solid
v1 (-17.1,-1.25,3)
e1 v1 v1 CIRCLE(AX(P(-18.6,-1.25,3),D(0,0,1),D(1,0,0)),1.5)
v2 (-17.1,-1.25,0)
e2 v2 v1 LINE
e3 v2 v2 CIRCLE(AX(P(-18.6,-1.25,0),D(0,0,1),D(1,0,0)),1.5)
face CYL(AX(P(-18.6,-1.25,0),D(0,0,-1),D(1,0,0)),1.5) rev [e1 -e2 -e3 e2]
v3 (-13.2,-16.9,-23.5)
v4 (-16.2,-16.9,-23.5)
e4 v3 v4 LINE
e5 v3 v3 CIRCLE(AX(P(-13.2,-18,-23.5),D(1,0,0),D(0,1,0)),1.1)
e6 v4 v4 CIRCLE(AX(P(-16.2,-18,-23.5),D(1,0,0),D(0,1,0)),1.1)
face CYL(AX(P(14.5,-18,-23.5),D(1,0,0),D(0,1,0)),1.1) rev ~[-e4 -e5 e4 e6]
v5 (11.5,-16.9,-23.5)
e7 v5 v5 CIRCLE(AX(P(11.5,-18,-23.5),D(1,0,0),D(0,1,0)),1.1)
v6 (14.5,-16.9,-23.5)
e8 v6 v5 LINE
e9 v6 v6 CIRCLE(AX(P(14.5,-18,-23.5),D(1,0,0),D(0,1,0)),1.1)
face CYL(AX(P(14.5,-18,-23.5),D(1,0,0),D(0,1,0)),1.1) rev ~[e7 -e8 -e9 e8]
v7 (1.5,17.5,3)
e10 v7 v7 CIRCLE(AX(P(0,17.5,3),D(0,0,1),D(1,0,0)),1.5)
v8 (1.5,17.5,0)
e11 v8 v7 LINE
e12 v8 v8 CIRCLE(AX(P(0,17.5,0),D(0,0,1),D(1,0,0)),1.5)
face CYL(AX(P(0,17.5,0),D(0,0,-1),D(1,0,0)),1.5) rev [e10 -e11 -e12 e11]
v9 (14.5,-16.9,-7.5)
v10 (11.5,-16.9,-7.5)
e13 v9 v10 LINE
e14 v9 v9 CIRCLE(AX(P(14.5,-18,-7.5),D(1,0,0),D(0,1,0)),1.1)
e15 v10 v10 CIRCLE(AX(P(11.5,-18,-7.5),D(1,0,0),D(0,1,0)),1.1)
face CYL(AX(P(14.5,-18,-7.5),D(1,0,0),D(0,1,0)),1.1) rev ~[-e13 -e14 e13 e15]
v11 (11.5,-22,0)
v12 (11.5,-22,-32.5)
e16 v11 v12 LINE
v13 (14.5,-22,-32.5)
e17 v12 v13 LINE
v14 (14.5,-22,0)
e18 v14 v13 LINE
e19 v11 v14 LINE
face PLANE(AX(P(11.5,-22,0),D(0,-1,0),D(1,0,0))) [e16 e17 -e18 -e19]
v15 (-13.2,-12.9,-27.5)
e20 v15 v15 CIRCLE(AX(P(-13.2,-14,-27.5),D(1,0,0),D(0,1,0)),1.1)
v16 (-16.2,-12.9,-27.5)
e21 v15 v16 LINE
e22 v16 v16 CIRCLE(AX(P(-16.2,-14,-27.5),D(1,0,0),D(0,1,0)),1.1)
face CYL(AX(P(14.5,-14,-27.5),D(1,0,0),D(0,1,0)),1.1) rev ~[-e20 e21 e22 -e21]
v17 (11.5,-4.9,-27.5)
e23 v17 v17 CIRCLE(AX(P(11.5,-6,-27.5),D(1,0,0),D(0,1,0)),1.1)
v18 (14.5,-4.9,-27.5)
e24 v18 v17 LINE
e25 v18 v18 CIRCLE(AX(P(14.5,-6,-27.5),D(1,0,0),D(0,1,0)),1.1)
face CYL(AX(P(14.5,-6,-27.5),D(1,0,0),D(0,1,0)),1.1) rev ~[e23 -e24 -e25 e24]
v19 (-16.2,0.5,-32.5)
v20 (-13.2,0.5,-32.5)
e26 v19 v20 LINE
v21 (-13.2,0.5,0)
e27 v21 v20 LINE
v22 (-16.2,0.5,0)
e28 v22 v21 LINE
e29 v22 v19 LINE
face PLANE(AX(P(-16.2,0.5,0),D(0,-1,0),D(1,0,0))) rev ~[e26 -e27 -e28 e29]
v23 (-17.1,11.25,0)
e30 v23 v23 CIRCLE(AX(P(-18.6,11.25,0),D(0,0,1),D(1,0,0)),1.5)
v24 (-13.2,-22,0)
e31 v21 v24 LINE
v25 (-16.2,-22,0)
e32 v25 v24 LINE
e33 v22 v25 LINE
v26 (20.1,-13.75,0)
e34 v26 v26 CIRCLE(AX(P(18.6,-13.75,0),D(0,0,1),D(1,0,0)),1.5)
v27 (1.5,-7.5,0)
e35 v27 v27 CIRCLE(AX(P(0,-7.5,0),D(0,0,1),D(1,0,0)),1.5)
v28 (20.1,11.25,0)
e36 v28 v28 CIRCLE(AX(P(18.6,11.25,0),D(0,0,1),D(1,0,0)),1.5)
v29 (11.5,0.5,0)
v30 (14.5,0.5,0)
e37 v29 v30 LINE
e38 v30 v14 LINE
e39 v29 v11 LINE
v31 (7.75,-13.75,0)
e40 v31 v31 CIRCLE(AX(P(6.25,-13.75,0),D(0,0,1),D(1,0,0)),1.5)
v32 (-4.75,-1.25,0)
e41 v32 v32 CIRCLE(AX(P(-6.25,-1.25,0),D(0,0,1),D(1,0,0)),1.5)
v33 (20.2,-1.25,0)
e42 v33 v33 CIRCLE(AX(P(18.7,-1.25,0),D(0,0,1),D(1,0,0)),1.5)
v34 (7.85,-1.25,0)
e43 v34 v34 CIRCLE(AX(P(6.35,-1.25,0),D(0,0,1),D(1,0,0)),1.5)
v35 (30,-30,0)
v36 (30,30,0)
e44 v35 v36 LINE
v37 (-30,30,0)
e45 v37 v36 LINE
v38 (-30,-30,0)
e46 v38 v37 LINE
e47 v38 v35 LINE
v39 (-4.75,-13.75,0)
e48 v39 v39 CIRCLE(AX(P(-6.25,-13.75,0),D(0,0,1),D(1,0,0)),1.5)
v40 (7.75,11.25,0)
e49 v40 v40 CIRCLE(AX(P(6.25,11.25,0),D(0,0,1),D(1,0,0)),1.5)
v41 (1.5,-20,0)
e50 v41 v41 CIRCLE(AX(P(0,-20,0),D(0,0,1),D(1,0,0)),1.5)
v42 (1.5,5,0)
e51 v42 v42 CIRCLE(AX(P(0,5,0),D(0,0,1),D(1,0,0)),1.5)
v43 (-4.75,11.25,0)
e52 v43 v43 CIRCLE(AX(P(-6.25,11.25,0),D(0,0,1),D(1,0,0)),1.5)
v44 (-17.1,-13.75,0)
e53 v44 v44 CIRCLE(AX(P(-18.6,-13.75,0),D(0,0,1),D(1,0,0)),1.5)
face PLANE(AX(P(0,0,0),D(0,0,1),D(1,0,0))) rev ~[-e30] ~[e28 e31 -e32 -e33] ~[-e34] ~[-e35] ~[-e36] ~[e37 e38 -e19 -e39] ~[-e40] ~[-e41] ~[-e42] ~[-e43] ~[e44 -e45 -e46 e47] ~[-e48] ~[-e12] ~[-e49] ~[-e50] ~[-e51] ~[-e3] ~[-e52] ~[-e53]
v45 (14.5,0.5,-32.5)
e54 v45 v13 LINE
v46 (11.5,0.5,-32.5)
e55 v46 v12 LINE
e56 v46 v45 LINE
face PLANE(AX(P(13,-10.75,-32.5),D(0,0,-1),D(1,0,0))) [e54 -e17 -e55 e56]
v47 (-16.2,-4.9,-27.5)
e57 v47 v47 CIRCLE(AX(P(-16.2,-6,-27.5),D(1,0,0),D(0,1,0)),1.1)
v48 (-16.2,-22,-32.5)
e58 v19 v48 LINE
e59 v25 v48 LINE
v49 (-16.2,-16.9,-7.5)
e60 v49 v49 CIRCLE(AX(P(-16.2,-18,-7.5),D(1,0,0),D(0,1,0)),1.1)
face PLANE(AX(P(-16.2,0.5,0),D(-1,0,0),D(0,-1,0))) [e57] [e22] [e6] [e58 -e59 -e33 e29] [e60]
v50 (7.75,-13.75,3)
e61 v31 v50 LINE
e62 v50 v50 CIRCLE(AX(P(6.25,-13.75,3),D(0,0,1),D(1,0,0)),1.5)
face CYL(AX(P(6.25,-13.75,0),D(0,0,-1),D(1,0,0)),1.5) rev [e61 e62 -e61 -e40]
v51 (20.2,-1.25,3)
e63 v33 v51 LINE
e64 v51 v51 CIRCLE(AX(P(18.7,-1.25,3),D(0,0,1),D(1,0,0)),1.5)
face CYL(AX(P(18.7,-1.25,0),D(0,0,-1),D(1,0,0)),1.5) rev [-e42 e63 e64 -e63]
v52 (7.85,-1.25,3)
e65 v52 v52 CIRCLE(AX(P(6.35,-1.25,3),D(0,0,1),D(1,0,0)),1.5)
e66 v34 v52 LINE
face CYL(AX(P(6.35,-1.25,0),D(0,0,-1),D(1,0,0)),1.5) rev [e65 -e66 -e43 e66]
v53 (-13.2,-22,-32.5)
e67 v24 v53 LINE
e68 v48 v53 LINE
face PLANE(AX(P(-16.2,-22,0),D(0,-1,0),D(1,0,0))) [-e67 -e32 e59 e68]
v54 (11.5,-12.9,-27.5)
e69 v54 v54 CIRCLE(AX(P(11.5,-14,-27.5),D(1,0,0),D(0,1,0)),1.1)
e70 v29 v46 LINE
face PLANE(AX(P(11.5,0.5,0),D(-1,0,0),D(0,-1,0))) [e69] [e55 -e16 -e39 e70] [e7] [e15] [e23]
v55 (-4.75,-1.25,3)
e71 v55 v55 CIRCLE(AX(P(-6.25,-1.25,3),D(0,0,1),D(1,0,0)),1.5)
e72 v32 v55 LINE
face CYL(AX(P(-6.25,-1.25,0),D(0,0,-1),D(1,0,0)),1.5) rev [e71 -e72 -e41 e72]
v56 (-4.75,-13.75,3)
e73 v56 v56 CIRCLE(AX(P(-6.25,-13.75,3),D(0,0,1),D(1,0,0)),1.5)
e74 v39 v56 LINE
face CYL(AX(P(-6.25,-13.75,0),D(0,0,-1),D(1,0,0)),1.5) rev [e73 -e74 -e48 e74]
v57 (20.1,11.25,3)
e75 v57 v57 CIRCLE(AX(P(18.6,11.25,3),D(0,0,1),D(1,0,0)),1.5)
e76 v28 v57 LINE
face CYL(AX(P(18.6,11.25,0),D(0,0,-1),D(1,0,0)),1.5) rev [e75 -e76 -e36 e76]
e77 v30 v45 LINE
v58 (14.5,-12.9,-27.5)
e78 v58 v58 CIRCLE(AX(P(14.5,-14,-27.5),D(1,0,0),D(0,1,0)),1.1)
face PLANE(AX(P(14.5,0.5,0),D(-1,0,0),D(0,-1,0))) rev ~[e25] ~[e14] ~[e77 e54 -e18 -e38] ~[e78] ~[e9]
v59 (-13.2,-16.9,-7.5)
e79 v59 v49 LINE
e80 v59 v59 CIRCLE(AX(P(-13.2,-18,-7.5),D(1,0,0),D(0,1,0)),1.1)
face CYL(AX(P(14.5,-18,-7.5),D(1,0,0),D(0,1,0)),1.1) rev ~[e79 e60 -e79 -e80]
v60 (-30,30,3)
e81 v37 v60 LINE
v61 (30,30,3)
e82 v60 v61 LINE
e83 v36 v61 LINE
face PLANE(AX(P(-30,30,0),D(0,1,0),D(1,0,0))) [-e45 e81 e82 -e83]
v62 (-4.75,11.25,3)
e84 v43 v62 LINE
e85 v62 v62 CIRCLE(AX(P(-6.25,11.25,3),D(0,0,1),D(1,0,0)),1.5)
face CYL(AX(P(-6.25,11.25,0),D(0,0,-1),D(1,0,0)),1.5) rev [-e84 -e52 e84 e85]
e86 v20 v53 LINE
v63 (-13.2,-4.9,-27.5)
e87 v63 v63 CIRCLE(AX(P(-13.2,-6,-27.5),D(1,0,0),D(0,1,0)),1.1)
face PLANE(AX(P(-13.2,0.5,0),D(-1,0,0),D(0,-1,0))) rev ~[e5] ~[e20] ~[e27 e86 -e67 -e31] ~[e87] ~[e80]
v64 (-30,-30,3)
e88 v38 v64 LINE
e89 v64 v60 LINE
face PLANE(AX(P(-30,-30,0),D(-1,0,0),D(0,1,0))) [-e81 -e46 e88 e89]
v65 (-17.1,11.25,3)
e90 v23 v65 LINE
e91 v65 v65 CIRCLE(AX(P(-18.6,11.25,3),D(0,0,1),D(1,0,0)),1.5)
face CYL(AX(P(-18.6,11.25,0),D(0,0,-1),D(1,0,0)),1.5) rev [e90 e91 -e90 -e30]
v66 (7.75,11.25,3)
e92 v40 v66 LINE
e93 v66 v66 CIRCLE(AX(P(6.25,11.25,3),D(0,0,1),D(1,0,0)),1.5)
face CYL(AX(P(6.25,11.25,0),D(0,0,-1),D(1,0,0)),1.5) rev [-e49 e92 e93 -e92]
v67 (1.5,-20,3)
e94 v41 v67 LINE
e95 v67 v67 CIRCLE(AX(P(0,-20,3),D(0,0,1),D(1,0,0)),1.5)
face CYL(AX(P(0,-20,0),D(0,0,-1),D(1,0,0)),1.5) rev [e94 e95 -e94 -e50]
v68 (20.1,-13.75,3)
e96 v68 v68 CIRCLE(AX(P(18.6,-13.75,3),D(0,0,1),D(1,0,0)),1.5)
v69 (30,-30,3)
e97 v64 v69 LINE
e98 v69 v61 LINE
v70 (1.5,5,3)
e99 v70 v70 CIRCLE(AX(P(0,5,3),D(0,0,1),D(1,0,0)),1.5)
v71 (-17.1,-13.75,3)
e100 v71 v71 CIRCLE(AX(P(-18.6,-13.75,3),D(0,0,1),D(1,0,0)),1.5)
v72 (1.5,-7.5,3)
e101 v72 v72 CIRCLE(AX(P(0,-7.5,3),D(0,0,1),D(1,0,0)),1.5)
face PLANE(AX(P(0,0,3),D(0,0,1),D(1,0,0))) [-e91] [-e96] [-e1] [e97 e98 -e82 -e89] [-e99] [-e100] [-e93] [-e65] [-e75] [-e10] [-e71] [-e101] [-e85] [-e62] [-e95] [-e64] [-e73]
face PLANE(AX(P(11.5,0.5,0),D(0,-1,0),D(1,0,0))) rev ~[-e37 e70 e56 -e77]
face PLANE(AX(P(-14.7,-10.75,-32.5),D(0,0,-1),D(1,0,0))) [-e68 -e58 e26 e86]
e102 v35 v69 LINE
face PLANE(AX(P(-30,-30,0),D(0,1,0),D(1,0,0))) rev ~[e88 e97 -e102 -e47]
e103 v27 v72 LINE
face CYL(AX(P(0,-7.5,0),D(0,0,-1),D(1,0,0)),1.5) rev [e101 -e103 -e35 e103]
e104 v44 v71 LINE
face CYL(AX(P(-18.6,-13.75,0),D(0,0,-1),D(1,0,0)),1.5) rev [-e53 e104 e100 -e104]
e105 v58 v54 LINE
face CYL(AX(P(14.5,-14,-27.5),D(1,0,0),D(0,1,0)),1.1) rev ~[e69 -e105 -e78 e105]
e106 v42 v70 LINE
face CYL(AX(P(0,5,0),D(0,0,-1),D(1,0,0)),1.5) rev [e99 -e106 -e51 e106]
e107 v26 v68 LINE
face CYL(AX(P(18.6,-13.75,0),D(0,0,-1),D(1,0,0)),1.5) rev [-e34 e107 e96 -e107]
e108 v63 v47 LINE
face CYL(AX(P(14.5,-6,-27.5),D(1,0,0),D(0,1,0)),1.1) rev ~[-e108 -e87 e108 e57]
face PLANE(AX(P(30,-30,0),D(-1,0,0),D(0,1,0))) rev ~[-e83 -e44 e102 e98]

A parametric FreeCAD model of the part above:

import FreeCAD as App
import Part
import Sketcher
Q = App.Units.Quantity


def add_polygon(sketch, points):
    """Adds a closed chain of lines whose ends are joined by coincident constraints."""
    first, n = sketch.GeometryCount, len(points)
    for a, b in zip(points, points[1:] + points[:1]):
        sketch.addGeometry(Part.LineSegment(App.Vector(*a, 0), App.Vector(*b, 0)), False)
    for i in range(n):
        sketch.addConstraint(Sketcher.Constraint("Coincident", first + i, 2, first + (i + 1) % n, 1))

doc = App.newDocument("Part")
params = doc.addObject("Spreadsheet::Sheet", "Params")
for row, (alias, value) in enumerate([
    ("sketch1_diameter", "3 mm"),
    ("sketch1_width", "60 mm"),
    ("pad1_length", "3 mm"),
    ("sketch2_width", "3 mm"),
    ("sketch2_height", "22.5 mm"),
    ("pad2_length", "32.5 mm"),
    ("sketch3_diameter", "2.2 mm"),
    ("pocket1_length", "60 mm"),
], start=1):
    params.set(f"A{row}", alias)
    params.set(f"B{row}", "=" + value)
    params.setAlias(f"B{row}", alias)

body = doc.addObject("PartDesign::Body", "Body")

# Sketch on XY plane
sketch1 = body.newObject("Sketcher::SketchObject", "Sketch")
sketch1.AttachmentSupport = (doc.getObject("XY_Plane"), [""])
sketch1.MapMode = "FlatFace"
add_polygon(sketch1, [(-30, 30), (-30, -30), (30, -30), (30, 30)])  # lines 0-3
sketch1.addGeometry(Part.Circle(App.Vector(-18.6, -13.75, 0), App.Vector(0, 0, 1), 1.5), False)  # 4
sketch1.addGeometry(Part.Circle(App.Vector(0, -20, 0), App.Vector(0, 0, 1), 1.5), False)  # 5
sketch1.addGeometry(Part.Circle(App.Vector(-6.25, -13.75, 0), App.Vector(0, 0, 1), 1.5), False)  # 6
sketch1.addGeometry(Part.Circle(App.Vector(0, -7.5, 0), App.Vector(0, 0, 1), 1.5), False)  # 7
sketch1.addGeometry(Part.Circle(App.Vector(6.25, -13.75, 0), App.Vector(0, 0, 1), 1.5), False)  # 8
sketch1.addGeometry(Part.Circle(App.Vector(18.6, -13.75, 0), App.Vector(0, 0, 1), 1.5), False)  # 9
sketch1.addGeometry(Part.Circle(App.Vector(-18.6, -1.25, 0), App.Vector(0, 0, 1), 1.5), False)  # 10
sketch1.addGeometry(Part.Circle(App.Vector(-6.25, -1.25, 0), App.Vector(0, 0, 1), 1.5), False)  # 11
sketch1.addGeometry(Part.Circle(App.Vector(0, 5, 0), App.Vector(0, 0, 1), 1.5), False)  # 12
sketch1.addGeometry(Part.Circle(App.Vector(-18.6, 11.25, 0), App.Vector(0, 0, 1), 1.5), False)  # 13
sketch1.addGeometry(Part.Circle(App.Vector(-6.25, 11.25, 0), App.Vector(0, 0, 1), 1.5), False)  # 14
sketch1.addGeometry(Part.Circle(App.Vector(0, 17.5, 0), App.Vector(0, 0, 1), 1.5), False)  # 15
sketch1.addGeometry(Part.Circle(App.Vector(6.35, -1.25, 0), App.Vector(0, 0, 1), 1.5), False)  # 16
sketch1.addGeometry(Part.Circle(App.Vector(18.7, -1.25, 0), App.Vector(0, 0, 1), 1.5), False)  # 17
sketch1.addGeometry(Part.Circle(App.Vector(6.25, 11.25, 0), App.Vector(0, 0, 1), 1.5), False)  # 18
sketch1.addGeometry(Part.Circle(App.Vector(18.6, 11.25, 0), App.Vector(0, 0, 1), 1.5), False)  # 19
sketch1.addConstraint([
    Sketcher.Constraint("Vertical", 0),
    Sketcher.Constraint("Horizontal", 1),
    Sketcher.Constraint("Vertical", 2),
    Sketcher.Constraint("Horizontal", 3),
    Sketcher.Constraint("Equal", 4, 5),
    Sketcher.Constraint("Equal", 5, 6),
    Sketcher.Constraint("Equal", 6, 7),
    Sketcher.Constraint("Equal", 7, 8),
    Sketcher.Constraint("Equal", 8, 9),
    Sketcher.Constraint("Equal", 9, 10),
    Sketcher.Constraint("Equal", 10, 11),
    Sketcher.Constraint("Equal", 11, 12),
    Sketcher.Constraint("Equal", 12, 13),
    Sketcher.Constraint("Equal", 13, 14),
    Sketcher.Constraint("Equal", 14, 15),
    Sketcher.Constraint("Equal", 15, 16),
    Sketcher.Constraint("Equal", 16, 17),
    Sketcher.Constraint("Equal", 17, 18),
    Sketcher.Constraint("Equal", 18, 19),
    Sketcher.Constraint("Symmetric", 0, 2, 2, 2, -1, 1),
    Sketcher.Constraint("Symmetric", 6, 3, 8, 3, -2),
    Sketcher.Constraint("Symmetric", 4, 3, 9, 3, -2),
    Sketcher.Constraint("Symmetric", 14, 3, 18, 3, -2),
    Sketcher.Constraint("Symmetric", 13, 3, 19, 3, -2),
    Sketcher.Constraint("PointOnObject", 5, 3, -2),
    Sketcher.Constraint("PointOnObject", 7, 3, -2),
    Sketcher.Constraint("PointOnObject", 12, 3, -2),
    Sketcher.Constraint("PointOnObject", 15, 3, -2),
    Sketcher.Constraint("Horizontal", 4, 3, 6, 3),
    Sketcher.Constraint("Horizontal", 10, 3, 11, 3),
    Sketcher.Constraint("Horizontal", 13, 3, 14, 3),
    Sketcher.Constraint("Horizontal", 11, 3, 16, 3),
    Sketcher.Constraint("Horizontal", 16, 3, 17, 3),
    Sketcher.Constraint("Vertical", 4, 3, 10, 3),
    Sketcher.Constraint("Vertical", 6, 3, 11, 3),
    Sketcher.Constraint("Vertical", 10, 3, 13, 3),
    Sketcher.Constraint("Vertical", 11, 3, 14, 3),
    Sketcher.Constraint("Equal", 3, 0),
    Sketcher.Constraint("Diameter", 4, Q("3 mm")),
    Sketcher.Constraint("DistanceX", 1, 1, 1, 2, Q("60 mm")),
    Sketcher.Constraint("DistanceY", 5, 3, -1, 1, Q("20 mm")),
    Sketcher.Constraint("DistanceY", -1, 1, 12, 3, Q("5 mm")),
    Sketcher.Constraint("DistanceY", 4, 3, 13, 3, Q("25 mm")),
    Sketcher.Constraint("DistanceY", 7, 3, 15, 3, Q("25 mm")),
    Sketcher.Constraint("DistanceX", 4, 3, -1, 1, Q("18.6 mm")),
    Sketcher.Constraint("DistanceY", 7, 3, -1, 1, Q("7.5 mm")),
    Sketcher.Constraint("DistanceX", -1, 1, 17, 3, Q("18.7 mm")),
    Sketcher.Constraint("DistanceX", 6, 3, 8, 3, Q("12.5 mm")),
    Sketcher.Constraint("DistanceY", 4, 3, 10, 3, Q("12.5 mm")),
    Sketcher.Constraint("DistanceX", 8, 3, 16, 3, Q("0.1 mm")),
    Sketcher.Constraint("DistanceY", 4, 3, -1, 1, Q("13.75 mm")),
])
sketch1.setExpression("Constraints[42]", "Params.sketch1_diameter")
sketch1.setExpression("Constraints[43]", "Params.sketch1_width")
pad1 = body.newObject("PartDesign::Pad", "Pad")
pad1.Profile = sketch1
pad1.setExpression("Length", "Params.pad1_length")

# Sketch on XY plane
sketch2 = body.newObject("Sketcher::SketchObject", "Sketch001")
sketch2.AttachmentSupport = (doc.getObject("XY_Plane"), [""])
sketch2.MapMode = "FlatFace"
add_polygon(sketch2, [(-16.2, -22), (-16.2, 0.5), (-13.2, 0.5), (-13.2, -22)])  # lines 0-3
add_polygon(sketch2, [(11.5, -22), (11.5, 0.5), (14.5, 0.5), (14.5, -22)])  # lines 4-7
sketch2.addConstraint([
    Sketcher.Constraint("Vertical", 0),
    Sketcher.Constraint("Horizontal", 1),
    Sketcher.Constraint("Vertical", 2),
    Sketcher.Constraint("Horizontal", 3),
    Sketcher.Constraint("Vertical", 4),
    Sketcher.Constraint("Horizontal", 5),
    Sketcher.Constraint("Vertical", 6),
    Sketcher.Constraint("Horizontal", 7),
    Sketcher.Constraint("Horizontal", 1, 2, 4, 2),
    Sketcher.Constraint("Horizontal", 3, 2, 6, 2),
    Sketcher.Constraint("Equal", 3, 5),
    Sketcher.Constraint("DistanceX", 1, 1, 1, 2, Q("3 mm")),
    Sketcher.Constraint("DistanceY", 0, 1, 0, 2, Q("22.5 mm")),
    Sketcher.Constraint("DistanceY", 2, 2, -1, 1, Q("22 mm")),
    Sketcher.Constraint("DistanceX", 0, 2, -1, 1, Q("16.2 mm")),
    Sketcher.Constraint("DistanceX", -1, 1, 4, 2, Q("11.5 mm")),
])
sketch2.setExpression("Constraints[19]", "Params.sketch2_width")
sketch2.setExpression("Constraints[20]", "Params.sketch2_height")
pad2 = body.newObject("PartDesign::Pad", "Pad001")
pad2.Profile = sketch2
pad2.setExpression("Length", "Params.pad2_length")
pad2.Reversed = True

# Sketch on YZ plane
sketch3 = body.newObject("Sketcher::SketchObject", "Sketch002")
sketch3.AttachmentSupport = (doc.getObject("YZ_Plane"), [""])
sketch3.MapMode = "FlatFace"
sketch3.AttachmentOffset = App.Placement(App.Vector(0, 0, 14.5), App.Rotation())
sketch3.addGeometry([
    Part.Circle(App.Vector(-18, -23.5, 0), App.Vector(0, 0, 1), 1.1),
    Part.Circle(App.Vector(-6, -27.5, 0), App.Vector(0, 0, 1), 1.1),
    Part.Circle(App.Vector(-18, -7.5, 0), App.Vector(0, 0, 1), 1.1),
    Part.Circle(App.Vector(-14, -27.5, 0), App.Vector(0, 0, 1), 1.1),
], False)
sketch3.addConstraint([
    Sketcher.Constraint("Equal", 0, 1),
    Sketcher.Constraint("Equal", 1, 2),
    Sketcher.Constraint("Equal", 2, 3),
    Sketcher.Constraint("Horizontal", 1, 3, 3, 3),
    Sketcher.Constraint("Vertical", 0, 3, 2, 3),
    Sketcher.Constraint("Diameter", 0, Q("2.2 mm")),
    Sketcher.Constraint("DistanceX", 0, 3, -1, 1, Q("18 mm")),
    Sketcher.Constraint("DistanceX", 1, 3, -1, 1, Q("6 mm")),
    Sketcher.Constraint("DistanceX", 3, 3, -1, 1, Q("14 mm")),
    Sketcher.Constraint("DistanceY", 1, 3, 0, 3, Q("4 mm")),
    Sketcher.Constraint("DistanceY", 0, 3, 2, 3, Q("16 mm")),
    Sketcher.Constraint("DistanceY", 0, 3, -1, 1, Q("23.5 mm")),
])
sketch3.setExpression("Constraints[5]", "Params.sketch3_diameter")
pocket1 = body.newObject("PartDesign::Pocket", "Pocket")
pocket1.Profile = sketch3
pocket1.setExpression("Length", "Params.pocket1_length")

doc.recompute()
